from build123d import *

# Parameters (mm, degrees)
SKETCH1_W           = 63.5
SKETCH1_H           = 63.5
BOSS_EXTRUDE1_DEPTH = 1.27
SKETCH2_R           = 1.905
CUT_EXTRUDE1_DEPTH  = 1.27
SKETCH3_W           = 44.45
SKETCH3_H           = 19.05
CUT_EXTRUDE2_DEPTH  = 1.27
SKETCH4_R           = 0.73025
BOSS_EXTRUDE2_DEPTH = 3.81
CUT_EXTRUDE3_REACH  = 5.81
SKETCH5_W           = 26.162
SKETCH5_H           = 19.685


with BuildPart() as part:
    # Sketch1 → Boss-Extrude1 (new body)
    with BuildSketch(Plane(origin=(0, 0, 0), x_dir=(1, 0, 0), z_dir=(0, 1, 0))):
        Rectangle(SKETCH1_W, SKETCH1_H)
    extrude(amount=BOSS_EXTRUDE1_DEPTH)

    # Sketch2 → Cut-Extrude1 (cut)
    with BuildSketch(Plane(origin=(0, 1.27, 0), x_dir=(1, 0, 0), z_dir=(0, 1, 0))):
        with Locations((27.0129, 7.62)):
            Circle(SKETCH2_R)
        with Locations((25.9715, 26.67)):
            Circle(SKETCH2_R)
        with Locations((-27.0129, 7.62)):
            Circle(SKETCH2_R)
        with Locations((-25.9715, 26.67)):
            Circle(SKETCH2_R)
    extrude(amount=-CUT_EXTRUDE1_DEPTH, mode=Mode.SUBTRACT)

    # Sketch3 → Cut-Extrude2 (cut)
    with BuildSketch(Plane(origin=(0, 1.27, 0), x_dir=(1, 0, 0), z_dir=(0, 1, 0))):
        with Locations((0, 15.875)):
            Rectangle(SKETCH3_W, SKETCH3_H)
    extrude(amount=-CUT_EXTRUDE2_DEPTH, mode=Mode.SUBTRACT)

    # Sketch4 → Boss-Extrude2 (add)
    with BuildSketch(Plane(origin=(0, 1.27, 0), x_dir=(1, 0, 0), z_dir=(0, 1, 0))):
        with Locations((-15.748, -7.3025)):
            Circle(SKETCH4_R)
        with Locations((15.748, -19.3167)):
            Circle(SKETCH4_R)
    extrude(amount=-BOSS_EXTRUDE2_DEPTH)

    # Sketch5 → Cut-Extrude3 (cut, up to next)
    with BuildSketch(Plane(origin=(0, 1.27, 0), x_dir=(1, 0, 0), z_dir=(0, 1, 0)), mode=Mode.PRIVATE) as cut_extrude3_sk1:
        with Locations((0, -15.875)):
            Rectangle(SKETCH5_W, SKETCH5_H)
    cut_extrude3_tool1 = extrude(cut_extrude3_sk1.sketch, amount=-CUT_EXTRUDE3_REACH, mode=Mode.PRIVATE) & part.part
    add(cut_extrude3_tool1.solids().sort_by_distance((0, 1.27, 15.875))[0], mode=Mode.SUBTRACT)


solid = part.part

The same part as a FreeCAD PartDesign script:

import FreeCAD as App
import Part
import Sketcher
Q = App.Units.Quantity


def add_polygon(sketch, points):
    """Adds a closed chain of lines whose ends are joined by coincident constraints."""
    first, n = sketch.GeometryCount, len(points)
    for a, b in zip(points, points[1:] + points[:1]):
        sketch.addGeometry(Part.LineSegment(App.Vector(*a, 0), App.Vector(*b, 0)), False)
    for i in range(n):
        sketch.addConstraint(Sketcher.Constraint("Coincident", first + i, 2, first + (i + 1) % n, 1))

doc = App.newDocument("Part")
body = doc.addObject("PartDesign::Body", "Body")

# Sketch on XZ plane
sketch1 = body.newObject("Sketcher::SketchObject", "Sketch")
sketch1.AttachmentSupport = (doc.getObject("XZ_Plane"), [""])
sketch1.MapMode = "FlatFace"
add_polygon(sketch1, [(-32, -32), (-32, 32), (32, 32), (32, -32)])  # lines 0-3
sketch1.addConstraint(Sketcher.Constraint("Vertical", 0))
sketch1.addConstraint(Sketcher.Constraint("Horizontal", 1))
sketch1.addConstraint(Sketcher.Constraint("Vertical", 2))
sketch1.addConstraint(Sketcher.Constraint("Horizontal", 3))
sketch1.addConstraint(Sketcher.Constraint("Symmetric", 0, 2, 2, 2, -1, 1))
sketch1.addConstraint(Sketcher.Constraint("Equal", 3, 0))
sketch1.addConstraint(Sketcher.Constraint("DistanceX", 1, 1, 1, 2, Q("2.5 in")))
pad1 = body.newObject("PartDesign::Pad", "Pad")
pad1.Profile = sketch1
pad1.Length = Q("0.05 in")
pad1.Reversed = True

# Sketch on XZ plane
sketch2 = body.newObject("Sketcher::SketchObject", "Sketch001")
sketch2.AttachmentSupport = (doc.getObject("XZ_Plane"), [""])
sketch2.MapMode = "FlatFace"
sketch2.AttachmentOffset = App.Placement(App.Vector(0, 0, -0.05 * 25.4), App.Rotation())
sketch2.addGeometry(Part.Circle(App.Vector(27, -7.6, 0), App.Vector(0, 0, 1), 1.9), False)
sketch2.addGeometry(Part.Circle(App.Vector(26, -26.7, 0), App.Vector(0, 0, 1), 1.9), False)
sketch2.addGeometry(Part.Circle(App.Vector(-27, -7.6, 0), App.Vector(0, 0, 1), 1.9), False)
sketch2.addGeometry(Part.Circle(App.Vector(-26, -26.7, 0), App.Vector(0, 0, 1), 1.9), False)
sketch2.addConstraint(Sketcher.Constraint("Equal", 0, 1))
sketch2.addConstraint(Sketcher.Constraint("Equal", 1, 2))
sketch2.addConstraint(Sketcher.Constraint("Equal", 2, 3))
sketch2.addConstraint(Sketcher.Constraint("Symmetric", 0, 3, 2, 3, -2))
sketch2.addConstraint(Sketcher.Constraint("Symmetric", 1, 3, 3, 3, -2))
sketch2.addConstraint(Sketcher.Constraint("Diameter", 0, Q("0.15 in")))
sketch2.addConstraint(Sketcher.Constraint("DistanceY", 0, 3, -1, 1, Q("0.3 in")))
sketch2.addConstraint(Sketcher.Constraint("DistanceY", 1, 3, -1, 1, Q("1.05 in")))
sketch2.addConstraint(Sketcher.Constraint("DistanceX", 1, 3, 0, 3, Q("0.041 in")))
sketch2.addConstraint(Sketcher.Constraint("DistanceX", 2, 3, 0, 3, Q("2.127 in")))
pocket1 = body.newObject("PartDesign::Pocket", "Pocket")
pocket1.Profile = sketch2
pocket1.Length = Q("0.05 in")
pocket1.Reversed = True

# Sketch on XZ plane
sketch3 = body.newObject("Sketcher::SketchObject", "Sketch002")
sketch3.AttachmentSupport = (doc.getObject("XZ_Plane"), [""])
sketch3.MapMode = "FlatFace"
sketch3.AttachmentOffset = App.Placement(App.Vector(0, 0, -0.05 * 25.4), App.Rotation())
add_polygon(sketch3, [(-22, -25), (-22, -6), (22, -6), (22, -25)])  # lines 0-3
sketch3.addConstraint(Sketcher.Constraint("Vertical", 0))
sketch3.addConstraint(Sketcher.Constraint("Horizontal", 1))
sketch3.addConstraint(Sketcher.Constraint("Vertical", 2))
sketch3.addConstraint(Sketcher.Constraint("Horizontal", 3))
sketch3.addConstraint(Sketcher.Constraint("DistanceY", 2, 2, -1, 1, Q("1 in")))
sketch3.addConstraint(Sketcher.Constraint("DistanceX", 1, 1, 1, 2, Q("1.75 in")))
sketch3.addConstraint(Sketcher.Constraint("DistanceY", 0, 1, 0, 2, Q("0.75 in")))
sketch3.addConstraint(Sketcher.Constraint("DistanceX", 0, 2, -1, 1, Q("0.875 in")))
pocket2 = body.newObject("PartDesign::Pocket", "Pocket001")
pocket2.Profile = sketch3
pocket2.Length = Q("0.05 in")
pocket2.Reversed = True

# Sketch on XZ plane
sketch4 = body.newObject("Sketcher::SketchObject", "Sketch003")
sketch4.AttachmentSupport = (doc.getObject("XZ_Plane"), [""])
sketch4.MapMode = "FlatFace"
sketch4.AttachmentOffset = App.Placement(App.Vector(0, 0, -0.05 * 25.4), App.Rotation())
sketch4.addGeometry(Part.Circle(App.Vector(-15.7, 7.3, 0), App.Vector(0, 0, 1), 0.7), False)
sketch4.addGeometry(Part.Circle(App.Vector(15.7, 19.3, 0), App.Vector(0, 0, 1), 0.7), False)
sketch4.addConstraint(Sketcher.Constraint("Equal", 0, 1))
sketch4.addConstraint(Sketcher.Constraint("Diameter", 0, Q("0.0575 in")))
sketch4.addConstraint(Sketcher.Constraint("DistanceX", 0, 3, -1, 1, Q("0.62 in")))
sketch4.addConstraint(Sketcher.Constraint("DistanceX", -1, 1, 1, 3, Q("0.62 in")))
sketch4.addConstraint(Sketcher.Constraint("DistanceY", 0, 3, 1, 3, Q("0.473 in")))
sketch4.addConstraint(Sketcher.Constraint("DistanceY", -1, 1, 0, 3, Q("0.2875 in")))
pad2 = body.newObject("PartDesign::Pad", "Pad001")
pad2.Profile = sketch4
pad2.Length = Q("0.15 in")

# Sketch on XZ plane
sketch5 = body.newObject("Sketcher::SketchObject", "Sketch004")
sketch5.AttachmentSupport = (doc.getObject("XZ_Plane"), [""])
sketch5.MapMode = "FlatFace"
sketch5.AttachmentOffset = App.Placement(App.Vector(0, 0, -0.05 * 25.4), App.Rotation())
add_polygon(sketch5, [(-13, 6), (-13, 26), (13, 26), (13, 6)])  # lines 0-3
sketch5.addConstraint(Sketcher.Constraint("Vertical", 0))
sketch5.addConstraint(Sketcher.Constraint("Horizontal", 1))
sketch5.addConstraint(Sketcher.Constraint("Vertical", 2))
sketch5.addConstraint(Sketcher.Constraint("Horizontal", 3))
sketch5.addConstraint(Sketcher.Constraint("DistanceX", 1, 1, 1, 2, Q("1.03 in")))
sketch5.addConstraint(Sketcher.Constraint("DistanceY", 0, 1, 0, 2, Q("0.775 in")))
sketch5.addConstraint(Sketcher.Constraint("DistanceX", 0, 2, -1, 1, Q("0.515 in")))
sketch5.addConstraint(Sketcher.Constraint("DistanceY", -1, 1, 0, 2, Q("1.0125 in")))
pocket3 = body.newObject("PartDesign::Pocket", "Pocket002")
pocket3.Profile = sketch5
pocket3.Type = "UpToFirst"
pocket3.Reversed = True

doc.recompute()
